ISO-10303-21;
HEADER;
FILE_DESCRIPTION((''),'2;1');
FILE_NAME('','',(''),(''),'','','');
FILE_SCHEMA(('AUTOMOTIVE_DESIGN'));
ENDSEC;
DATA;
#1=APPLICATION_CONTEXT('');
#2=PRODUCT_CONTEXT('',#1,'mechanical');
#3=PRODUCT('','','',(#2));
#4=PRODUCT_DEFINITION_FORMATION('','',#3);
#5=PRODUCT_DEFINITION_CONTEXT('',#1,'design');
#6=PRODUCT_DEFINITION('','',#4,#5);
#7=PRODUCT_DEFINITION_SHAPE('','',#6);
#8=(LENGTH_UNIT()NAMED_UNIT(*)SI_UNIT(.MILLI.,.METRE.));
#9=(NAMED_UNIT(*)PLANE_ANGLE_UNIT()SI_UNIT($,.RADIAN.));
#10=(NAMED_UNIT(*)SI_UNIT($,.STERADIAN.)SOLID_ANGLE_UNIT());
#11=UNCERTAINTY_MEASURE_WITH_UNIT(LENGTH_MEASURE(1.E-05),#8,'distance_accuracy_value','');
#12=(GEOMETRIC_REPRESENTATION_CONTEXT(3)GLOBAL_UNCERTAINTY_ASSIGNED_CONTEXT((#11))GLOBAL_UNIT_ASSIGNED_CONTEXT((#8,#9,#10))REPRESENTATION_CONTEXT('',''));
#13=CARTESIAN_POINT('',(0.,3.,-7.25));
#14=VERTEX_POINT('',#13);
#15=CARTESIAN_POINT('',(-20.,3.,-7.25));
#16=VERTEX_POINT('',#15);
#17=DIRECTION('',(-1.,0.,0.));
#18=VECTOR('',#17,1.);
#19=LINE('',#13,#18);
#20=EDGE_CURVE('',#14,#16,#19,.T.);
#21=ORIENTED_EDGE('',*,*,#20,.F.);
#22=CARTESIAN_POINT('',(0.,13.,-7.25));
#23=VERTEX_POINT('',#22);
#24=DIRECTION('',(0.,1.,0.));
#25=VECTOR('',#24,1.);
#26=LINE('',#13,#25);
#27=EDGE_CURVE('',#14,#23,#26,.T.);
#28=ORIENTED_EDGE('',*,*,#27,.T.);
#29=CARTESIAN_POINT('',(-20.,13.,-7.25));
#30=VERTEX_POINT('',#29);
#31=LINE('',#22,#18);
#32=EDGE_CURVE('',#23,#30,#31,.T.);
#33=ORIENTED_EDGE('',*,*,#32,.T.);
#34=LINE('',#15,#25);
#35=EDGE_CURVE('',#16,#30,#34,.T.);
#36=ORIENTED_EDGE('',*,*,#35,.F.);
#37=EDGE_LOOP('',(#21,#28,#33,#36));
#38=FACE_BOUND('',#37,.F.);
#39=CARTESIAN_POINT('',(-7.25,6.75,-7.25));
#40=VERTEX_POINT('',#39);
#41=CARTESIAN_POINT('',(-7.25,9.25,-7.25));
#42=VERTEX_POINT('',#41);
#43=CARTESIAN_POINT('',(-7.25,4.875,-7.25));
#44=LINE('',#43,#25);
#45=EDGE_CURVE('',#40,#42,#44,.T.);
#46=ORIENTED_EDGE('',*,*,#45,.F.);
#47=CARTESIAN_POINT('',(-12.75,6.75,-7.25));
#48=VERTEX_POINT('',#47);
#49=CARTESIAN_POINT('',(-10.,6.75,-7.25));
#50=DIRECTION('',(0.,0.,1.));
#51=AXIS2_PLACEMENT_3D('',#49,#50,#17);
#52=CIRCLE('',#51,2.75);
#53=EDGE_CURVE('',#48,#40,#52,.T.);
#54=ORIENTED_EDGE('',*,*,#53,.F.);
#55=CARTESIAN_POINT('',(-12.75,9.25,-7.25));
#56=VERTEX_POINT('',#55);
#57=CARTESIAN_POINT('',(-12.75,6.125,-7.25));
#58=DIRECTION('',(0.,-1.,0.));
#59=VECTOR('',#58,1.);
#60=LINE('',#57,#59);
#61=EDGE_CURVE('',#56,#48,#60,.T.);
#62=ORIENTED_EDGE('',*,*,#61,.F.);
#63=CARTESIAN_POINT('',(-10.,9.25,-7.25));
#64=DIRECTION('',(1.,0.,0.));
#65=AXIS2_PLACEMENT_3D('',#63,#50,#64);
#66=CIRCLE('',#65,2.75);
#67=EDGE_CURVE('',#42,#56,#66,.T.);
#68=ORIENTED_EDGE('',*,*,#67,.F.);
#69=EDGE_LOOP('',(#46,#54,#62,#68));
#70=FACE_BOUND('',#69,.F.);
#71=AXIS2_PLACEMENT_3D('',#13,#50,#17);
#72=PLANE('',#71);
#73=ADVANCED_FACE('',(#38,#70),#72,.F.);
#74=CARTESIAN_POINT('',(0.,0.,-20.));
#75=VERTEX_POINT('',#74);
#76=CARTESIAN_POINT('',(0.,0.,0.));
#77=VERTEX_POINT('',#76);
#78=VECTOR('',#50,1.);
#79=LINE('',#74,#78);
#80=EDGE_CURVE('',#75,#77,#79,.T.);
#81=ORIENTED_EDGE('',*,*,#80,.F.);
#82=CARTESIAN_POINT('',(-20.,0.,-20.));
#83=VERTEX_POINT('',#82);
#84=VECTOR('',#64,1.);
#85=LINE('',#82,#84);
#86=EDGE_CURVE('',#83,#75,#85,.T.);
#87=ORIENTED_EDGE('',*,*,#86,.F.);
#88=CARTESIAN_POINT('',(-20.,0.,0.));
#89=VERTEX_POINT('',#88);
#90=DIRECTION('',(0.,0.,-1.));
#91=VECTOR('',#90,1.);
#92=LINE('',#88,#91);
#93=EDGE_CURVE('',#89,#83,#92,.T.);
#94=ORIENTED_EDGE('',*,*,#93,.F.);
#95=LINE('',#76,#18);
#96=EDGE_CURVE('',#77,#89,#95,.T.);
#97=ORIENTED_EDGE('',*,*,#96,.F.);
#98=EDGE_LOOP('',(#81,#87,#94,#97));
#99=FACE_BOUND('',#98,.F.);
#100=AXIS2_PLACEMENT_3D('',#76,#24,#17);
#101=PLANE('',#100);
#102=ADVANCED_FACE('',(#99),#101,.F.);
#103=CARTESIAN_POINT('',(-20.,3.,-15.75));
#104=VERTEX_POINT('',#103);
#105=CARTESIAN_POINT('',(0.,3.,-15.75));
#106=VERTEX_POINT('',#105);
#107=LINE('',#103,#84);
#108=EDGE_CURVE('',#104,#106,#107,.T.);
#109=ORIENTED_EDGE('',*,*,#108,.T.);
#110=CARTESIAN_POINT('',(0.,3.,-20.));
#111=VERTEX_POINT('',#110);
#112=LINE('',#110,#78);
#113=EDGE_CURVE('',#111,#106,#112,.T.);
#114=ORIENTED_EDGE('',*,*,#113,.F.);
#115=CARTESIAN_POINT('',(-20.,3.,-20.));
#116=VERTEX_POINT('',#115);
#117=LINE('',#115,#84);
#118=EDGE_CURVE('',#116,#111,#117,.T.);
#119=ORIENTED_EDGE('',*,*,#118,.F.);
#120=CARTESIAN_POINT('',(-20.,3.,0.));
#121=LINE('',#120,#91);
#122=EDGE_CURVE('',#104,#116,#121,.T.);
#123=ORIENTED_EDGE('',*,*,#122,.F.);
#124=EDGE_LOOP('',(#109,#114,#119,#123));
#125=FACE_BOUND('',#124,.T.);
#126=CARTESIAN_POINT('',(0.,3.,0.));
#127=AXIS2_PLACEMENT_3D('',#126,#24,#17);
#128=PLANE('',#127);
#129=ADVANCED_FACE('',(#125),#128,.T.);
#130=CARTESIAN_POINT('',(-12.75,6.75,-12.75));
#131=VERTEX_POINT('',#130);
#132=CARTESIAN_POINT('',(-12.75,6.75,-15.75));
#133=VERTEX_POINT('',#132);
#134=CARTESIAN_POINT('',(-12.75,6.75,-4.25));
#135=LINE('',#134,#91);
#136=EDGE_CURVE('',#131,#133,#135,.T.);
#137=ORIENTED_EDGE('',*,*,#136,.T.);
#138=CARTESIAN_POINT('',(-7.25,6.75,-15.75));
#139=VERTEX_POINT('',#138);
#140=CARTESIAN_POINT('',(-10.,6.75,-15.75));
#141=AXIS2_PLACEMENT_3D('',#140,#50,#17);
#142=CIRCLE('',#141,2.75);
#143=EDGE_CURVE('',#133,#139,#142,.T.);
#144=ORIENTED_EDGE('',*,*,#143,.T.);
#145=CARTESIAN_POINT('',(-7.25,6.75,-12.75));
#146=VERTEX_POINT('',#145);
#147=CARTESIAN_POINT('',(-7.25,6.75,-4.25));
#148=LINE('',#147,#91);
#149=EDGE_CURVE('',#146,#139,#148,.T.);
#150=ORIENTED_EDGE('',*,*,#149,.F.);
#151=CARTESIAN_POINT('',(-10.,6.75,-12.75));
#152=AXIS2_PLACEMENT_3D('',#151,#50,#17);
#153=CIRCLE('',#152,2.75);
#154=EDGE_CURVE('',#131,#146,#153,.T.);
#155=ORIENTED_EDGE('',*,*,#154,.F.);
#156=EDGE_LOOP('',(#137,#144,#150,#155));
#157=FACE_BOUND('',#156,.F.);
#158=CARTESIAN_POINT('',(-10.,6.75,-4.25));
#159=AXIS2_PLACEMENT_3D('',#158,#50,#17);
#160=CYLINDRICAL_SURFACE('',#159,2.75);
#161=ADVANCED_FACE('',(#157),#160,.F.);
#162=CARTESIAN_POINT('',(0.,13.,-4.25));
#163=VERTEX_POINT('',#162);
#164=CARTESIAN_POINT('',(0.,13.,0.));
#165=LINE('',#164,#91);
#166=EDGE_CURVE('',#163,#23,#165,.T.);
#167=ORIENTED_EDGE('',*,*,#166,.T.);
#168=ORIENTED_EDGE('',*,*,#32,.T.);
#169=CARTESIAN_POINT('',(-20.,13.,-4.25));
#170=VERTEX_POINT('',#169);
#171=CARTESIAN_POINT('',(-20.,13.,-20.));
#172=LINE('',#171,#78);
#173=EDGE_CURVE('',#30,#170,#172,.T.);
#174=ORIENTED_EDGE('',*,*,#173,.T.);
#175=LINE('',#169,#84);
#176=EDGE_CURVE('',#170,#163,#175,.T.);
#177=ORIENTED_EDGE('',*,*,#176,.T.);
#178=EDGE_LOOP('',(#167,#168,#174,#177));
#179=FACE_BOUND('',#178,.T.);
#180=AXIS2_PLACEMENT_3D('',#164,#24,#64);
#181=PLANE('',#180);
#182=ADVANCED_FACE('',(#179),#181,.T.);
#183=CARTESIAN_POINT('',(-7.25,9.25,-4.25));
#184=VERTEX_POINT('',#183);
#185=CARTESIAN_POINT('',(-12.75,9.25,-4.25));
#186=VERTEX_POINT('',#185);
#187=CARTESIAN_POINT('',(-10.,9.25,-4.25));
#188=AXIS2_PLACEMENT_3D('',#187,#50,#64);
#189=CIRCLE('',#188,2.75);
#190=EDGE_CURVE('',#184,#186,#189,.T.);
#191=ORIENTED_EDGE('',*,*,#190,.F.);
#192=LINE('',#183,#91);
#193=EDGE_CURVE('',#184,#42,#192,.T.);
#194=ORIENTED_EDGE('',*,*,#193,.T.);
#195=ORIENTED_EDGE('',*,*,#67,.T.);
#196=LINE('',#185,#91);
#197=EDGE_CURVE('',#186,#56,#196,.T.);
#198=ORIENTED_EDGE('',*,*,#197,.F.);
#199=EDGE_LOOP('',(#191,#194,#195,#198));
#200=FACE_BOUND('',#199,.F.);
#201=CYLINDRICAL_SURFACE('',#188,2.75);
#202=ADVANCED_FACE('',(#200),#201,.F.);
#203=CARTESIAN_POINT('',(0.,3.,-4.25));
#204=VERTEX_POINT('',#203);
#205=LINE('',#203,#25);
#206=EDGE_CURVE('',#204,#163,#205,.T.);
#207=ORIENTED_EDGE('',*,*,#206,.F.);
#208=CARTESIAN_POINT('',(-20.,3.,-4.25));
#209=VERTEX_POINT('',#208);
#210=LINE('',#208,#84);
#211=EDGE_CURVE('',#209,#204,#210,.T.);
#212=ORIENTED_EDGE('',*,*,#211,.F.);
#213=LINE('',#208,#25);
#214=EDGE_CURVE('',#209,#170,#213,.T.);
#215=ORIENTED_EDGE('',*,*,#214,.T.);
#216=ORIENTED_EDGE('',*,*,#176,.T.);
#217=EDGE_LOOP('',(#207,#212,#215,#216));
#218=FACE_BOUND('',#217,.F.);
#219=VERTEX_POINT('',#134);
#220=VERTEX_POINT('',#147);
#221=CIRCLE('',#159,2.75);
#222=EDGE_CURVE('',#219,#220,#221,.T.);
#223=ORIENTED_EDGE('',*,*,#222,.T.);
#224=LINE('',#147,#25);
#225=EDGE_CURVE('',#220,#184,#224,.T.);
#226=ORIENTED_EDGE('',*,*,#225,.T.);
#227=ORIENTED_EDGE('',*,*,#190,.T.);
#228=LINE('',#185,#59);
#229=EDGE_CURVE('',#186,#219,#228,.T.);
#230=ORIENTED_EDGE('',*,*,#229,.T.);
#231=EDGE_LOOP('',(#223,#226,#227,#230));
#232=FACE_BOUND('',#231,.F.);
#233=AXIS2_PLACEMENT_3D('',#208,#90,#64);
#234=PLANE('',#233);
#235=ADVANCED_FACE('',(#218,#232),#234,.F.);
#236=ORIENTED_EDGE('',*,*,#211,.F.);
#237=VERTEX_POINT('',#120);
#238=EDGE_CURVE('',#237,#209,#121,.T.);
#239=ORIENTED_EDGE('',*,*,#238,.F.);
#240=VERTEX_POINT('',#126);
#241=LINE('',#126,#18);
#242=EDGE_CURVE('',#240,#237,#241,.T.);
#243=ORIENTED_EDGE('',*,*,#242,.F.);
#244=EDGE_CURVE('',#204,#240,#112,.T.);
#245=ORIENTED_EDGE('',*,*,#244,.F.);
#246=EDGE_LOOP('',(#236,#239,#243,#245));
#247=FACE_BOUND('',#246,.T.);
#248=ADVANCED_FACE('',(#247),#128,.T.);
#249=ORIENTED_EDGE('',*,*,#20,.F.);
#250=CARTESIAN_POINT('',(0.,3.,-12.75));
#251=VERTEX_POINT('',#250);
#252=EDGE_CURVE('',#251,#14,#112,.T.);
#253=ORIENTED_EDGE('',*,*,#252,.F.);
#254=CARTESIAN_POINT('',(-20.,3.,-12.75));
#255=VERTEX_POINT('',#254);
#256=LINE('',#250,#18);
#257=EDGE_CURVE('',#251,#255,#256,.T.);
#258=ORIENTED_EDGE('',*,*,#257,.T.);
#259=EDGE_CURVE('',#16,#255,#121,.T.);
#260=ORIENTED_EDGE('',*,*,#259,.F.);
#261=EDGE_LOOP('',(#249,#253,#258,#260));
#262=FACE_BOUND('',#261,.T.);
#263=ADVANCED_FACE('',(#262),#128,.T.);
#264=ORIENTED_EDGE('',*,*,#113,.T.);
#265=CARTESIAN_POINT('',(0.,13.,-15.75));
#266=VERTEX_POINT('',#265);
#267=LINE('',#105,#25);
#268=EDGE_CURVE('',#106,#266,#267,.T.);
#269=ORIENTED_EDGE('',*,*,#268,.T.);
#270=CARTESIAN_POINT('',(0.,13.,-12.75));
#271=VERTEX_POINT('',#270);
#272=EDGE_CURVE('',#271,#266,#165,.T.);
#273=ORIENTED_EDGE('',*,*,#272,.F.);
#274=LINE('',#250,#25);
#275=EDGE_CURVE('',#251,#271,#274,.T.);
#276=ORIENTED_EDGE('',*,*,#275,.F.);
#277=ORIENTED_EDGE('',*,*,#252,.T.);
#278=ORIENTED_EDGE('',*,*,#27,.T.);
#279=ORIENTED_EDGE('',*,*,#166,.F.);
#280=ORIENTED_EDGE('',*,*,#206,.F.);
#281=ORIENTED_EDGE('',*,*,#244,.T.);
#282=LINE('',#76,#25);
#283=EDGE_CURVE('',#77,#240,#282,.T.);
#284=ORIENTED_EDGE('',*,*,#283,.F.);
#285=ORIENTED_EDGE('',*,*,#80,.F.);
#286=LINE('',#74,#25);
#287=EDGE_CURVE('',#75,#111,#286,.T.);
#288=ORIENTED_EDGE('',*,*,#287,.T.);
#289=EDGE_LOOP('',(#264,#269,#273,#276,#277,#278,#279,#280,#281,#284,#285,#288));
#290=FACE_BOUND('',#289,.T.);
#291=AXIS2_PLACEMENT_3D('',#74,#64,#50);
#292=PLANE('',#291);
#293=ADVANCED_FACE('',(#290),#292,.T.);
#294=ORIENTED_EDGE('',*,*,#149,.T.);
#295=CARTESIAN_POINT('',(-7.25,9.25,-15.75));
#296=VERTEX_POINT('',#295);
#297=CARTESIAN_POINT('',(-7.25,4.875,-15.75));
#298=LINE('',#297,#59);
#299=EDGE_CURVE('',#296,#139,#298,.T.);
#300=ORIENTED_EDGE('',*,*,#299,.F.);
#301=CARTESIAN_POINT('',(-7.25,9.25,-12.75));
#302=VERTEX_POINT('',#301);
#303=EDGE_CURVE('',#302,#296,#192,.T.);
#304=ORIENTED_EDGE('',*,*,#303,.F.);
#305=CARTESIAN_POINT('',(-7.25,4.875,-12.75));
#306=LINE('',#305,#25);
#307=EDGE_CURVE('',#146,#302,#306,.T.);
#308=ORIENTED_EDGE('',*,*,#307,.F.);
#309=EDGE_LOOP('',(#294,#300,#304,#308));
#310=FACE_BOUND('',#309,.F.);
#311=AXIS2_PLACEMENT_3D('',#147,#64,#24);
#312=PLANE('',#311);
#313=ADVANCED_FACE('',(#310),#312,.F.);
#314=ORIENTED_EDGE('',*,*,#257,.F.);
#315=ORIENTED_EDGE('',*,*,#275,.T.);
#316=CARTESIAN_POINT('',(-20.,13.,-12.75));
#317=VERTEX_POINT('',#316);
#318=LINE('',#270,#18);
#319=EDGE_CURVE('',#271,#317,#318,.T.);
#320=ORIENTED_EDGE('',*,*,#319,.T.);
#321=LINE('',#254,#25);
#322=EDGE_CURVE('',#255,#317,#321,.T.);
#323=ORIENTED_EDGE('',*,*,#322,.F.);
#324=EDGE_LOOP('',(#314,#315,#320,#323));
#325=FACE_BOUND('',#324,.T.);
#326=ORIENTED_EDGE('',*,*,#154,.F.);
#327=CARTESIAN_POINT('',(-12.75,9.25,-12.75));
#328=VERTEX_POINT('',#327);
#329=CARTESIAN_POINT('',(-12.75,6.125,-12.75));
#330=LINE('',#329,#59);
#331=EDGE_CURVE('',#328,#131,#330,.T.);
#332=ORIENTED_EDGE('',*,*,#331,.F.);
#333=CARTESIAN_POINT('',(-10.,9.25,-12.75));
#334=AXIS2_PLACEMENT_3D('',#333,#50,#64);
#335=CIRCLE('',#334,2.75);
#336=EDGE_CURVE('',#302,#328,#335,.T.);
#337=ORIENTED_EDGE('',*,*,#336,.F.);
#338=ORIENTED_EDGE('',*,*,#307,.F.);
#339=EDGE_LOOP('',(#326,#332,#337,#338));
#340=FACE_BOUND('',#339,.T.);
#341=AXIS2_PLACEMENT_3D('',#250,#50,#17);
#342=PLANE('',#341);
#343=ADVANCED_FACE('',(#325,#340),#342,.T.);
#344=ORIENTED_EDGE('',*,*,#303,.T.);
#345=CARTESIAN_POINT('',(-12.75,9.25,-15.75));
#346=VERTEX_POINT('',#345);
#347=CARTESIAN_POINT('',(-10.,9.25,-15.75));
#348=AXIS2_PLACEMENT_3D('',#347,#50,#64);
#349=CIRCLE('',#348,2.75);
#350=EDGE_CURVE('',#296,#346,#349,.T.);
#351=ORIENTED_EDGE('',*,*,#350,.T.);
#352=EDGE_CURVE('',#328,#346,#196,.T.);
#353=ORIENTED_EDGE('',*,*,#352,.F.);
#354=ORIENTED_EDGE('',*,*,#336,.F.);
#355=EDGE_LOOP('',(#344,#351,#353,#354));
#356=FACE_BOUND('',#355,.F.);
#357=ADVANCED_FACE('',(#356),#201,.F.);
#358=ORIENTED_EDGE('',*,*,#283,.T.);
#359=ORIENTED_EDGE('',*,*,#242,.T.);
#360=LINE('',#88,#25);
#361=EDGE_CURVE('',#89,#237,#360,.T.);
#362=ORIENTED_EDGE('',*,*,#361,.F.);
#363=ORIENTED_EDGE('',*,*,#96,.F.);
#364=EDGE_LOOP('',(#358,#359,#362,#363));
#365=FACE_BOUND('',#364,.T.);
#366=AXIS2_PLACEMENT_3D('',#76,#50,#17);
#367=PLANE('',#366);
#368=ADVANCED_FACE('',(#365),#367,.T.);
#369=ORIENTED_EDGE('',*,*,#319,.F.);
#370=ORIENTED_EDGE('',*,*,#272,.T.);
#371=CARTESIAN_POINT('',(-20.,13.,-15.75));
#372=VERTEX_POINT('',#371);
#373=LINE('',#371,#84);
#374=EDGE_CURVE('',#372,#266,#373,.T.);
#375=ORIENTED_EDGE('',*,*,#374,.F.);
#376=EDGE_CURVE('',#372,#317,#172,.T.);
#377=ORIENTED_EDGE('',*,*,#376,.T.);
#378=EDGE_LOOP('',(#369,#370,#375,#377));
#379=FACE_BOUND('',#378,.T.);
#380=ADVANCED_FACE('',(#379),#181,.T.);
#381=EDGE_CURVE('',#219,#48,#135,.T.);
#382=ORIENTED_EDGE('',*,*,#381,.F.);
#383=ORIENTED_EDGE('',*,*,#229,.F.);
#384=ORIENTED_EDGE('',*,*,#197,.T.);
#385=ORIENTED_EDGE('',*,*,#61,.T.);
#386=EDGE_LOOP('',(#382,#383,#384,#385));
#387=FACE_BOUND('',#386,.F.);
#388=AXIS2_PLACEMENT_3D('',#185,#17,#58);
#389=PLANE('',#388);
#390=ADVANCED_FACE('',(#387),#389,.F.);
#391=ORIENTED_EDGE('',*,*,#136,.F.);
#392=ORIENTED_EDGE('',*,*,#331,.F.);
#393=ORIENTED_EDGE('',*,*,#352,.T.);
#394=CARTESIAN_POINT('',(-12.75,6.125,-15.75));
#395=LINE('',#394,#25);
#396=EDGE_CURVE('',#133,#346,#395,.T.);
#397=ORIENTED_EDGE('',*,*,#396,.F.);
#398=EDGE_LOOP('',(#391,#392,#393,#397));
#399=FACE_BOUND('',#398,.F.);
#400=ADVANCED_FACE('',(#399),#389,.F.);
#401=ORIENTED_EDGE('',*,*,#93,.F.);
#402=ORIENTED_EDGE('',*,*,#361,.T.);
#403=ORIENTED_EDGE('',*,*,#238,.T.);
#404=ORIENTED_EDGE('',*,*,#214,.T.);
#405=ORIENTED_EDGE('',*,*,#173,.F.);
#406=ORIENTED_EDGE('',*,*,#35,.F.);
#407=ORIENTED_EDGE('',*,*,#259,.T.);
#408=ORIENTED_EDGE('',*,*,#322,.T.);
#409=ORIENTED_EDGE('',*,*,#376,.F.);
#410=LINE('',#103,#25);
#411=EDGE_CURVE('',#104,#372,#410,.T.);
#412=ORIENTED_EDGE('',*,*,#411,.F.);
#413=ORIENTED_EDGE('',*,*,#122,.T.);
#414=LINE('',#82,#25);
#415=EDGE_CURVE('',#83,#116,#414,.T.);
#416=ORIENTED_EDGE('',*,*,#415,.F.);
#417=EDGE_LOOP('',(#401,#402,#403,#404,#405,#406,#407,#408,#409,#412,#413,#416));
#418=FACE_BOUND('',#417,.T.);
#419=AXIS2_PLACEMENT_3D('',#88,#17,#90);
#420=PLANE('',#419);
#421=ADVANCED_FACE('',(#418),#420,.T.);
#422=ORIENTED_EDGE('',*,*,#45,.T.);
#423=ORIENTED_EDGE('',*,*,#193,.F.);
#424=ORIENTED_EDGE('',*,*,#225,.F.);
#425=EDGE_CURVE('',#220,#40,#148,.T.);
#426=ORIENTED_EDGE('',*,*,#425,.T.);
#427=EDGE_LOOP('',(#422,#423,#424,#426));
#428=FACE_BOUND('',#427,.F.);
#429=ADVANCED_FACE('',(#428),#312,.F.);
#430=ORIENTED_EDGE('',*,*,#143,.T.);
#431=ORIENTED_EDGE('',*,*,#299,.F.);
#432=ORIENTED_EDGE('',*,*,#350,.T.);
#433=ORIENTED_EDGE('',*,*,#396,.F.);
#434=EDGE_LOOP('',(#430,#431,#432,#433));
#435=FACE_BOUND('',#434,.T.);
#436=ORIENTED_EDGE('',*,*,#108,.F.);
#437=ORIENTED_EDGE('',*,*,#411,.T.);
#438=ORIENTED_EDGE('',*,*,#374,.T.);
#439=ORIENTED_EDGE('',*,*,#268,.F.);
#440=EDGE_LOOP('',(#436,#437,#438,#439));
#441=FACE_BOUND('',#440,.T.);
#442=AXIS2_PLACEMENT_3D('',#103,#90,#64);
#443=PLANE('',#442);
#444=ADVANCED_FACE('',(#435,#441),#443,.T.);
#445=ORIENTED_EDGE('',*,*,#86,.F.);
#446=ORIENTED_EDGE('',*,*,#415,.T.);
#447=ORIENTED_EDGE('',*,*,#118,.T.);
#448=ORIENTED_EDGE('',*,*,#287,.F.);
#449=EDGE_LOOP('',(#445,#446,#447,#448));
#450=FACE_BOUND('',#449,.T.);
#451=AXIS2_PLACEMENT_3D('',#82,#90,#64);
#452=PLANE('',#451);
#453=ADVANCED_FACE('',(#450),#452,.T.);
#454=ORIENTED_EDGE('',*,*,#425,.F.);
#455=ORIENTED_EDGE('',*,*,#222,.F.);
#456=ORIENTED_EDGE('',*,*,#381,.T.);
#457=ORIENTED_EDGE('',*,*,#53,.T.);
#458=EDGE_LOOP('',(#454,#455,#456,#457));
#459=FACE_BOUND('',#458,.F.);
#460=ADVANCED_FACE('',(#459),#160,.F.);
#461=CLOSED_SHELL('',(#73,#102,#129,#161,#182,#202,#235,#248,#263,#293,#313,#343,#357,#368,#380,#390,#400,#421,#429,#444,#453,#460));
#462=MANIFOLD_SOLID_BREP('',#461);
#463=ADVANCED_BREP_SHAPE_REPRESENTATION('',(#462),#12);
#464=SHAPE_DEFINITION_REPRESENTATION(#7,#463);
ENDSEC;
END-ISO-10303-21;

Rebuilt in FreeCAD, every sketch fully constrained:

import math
import FreeCAD as App
import Part
import Sketcher
from FreeCAD import Vector


def add_polygon(sketch, points):
    """Adds a closed chain of lines whose ends are joined by coincident constraints."""
    first, n = sketch.GeometryCount, len(points)
    for a, b in zip(points, points[1:] + points[:1]):
        sketch.addGeometry(Part.LineSegment(App.Vector(*a, 0), App.Vector(*b, 0)), False)
    for i in range(n):
        sketch.addConstraint(Sketcher.Constraint("Coincident", first + i, 2, first + (i + 1) % n, 1))

doc = App.newDocument("Part")
body = doc.addObject("PartDesign::Body", "Body")

# Sketch on XZ plane
sketch1 = doc.addObject("Sketcher::SketchObject", "Sketch")
body.addObject(sketch1)
sketch1.AttachmentSupport = (doc.XZ_Plane, [""])
sketch1.MapMode = "FlatFace"
add_polygon(sketch1, [(-20, 0), (0, 0), (0, -20), (-20, -20)])  # lines 0-3
sketch1.addConstraint([
    Sketcher.Constraint("Horizontal", 0),
    Sketcher.Constraint("Vertical", 1),
    Sketcher.Constraint("Horizontal", 2),
    Sketcher.Constraint("Vertical", 3),
    Sketcher.Constraint("Coincident", 0, 2, -1, 1),
    Sketcher.Constraint("Equal", 2, 1),
    Sketcher.Constraint("DistanceX", 0, 1, 0, 2, 20.0),
])
pad1 = doc.addObject("PartDesign::Pad", "Pad")
body.addObject(pad1)
pad1.Profile = sketch1
pad1.Length = 3
pad1.Reversed = True

# Sketch on XZ plane
sketch2 = doc.addObject("Sketcher::SketchObject", "Sketch001")
body.addObject(sketch2)
sketch2.AttachmentSupport = (doc.XZ_Plane, [""])
sketch2.MapMode = "FlatFace"
sketch2.AttachmentOffset = App.Placement(Vector(0, 0, -3), App.Rotation())
add_polygon(sketch2, [(0, -15.8), (-20, -15.8), (-20, -12.8), (0, -12.8)])  # lines 0-3
add_polygon(sketch2, [(0, -7.2), (-20, -7.2), (-20, -4.2), (0, -4.2)])  # lines 4-7
sketch2.addConstraint([
    Sketcher.Constraint("Horizontal", 0),
    Sketcher.Constraint("Vertical", 1),
    Sketcher.Constraint("Horizontal", 2),
    Sketcher.Constraint("Vertical", 3),
    Sketcher.Constraint("Horizontal", 4),
    Sketcher.Constraint("Vertical", 5),
    Sketcher.Constraint("Horizontal", 6),
    Sketcher.Constraint("Vertical", 7),
    Sketcher.Constraint("PointOnObject", 2, 2, -2),
    Sketcher.Constraint("PointOnObject", 6, 2, -2),
    Sketcher.Constraint("Vertical", 1, 2, 4, 2),
    Sketcher.Constraint("Equal", 3, 5),
    Sketcher.Constraint("DistanceY", 1, 1, 1, 2, 3.0),
    Sketcher.Constraint("DistanceY", 1, 2, 4, 2, 5.5),
    Sketcher.Constraint("DistanceX", 0, 2, 0, 1, 20.0),
    Sketcher.Constraint("DistanceY", 5, 2, -1, 1, 4.25),
])
pad2 = doc.addObject("PartDesign::Pad", "Pad001")
body.addObject(pad2)
pad2.Profile = sketch2
pad2.Length = 10
pad2.Reversed = True

# Sketch on XY plane
sketch3 = doc.addObject("Sketcher::SketchObject", "Sketch002")
body.addObject(sketch3)
sketch3.AttachmentSupport = (doc.XY_Plane, [""])
sketch3.MapMode = "FlatFace"
sketch3.AttachmentOffset = App.Placement(Vector(0, 0, -4.25), App.Rotation())
sketch3.addGeometry([
    Part.ArcOfCircle(Part.Circle(Vector(-10, 9.2, 0), Vector(0, 0, 1), 2.8), math.radians(0), math.radians(180)),
    Part.LineSegment(Vector(-12.8, 9.2, 0), Vector(-12.8, 6.8, 0)),
    Part.ArcOfCircle(Part.Circle(Vector(-10, 6.8, 0), Vector(0, 0, 1), 2.8), math.radians(180), math.radians(360)),
    Part.LineSegment(Vector(-7.2, 6.8, 0), Vector(-7.2, 9.2, 0)),
], False)
sketch3.addConstraint([
    Sketcher.Constraint("Tangent", 0, 2, 1, 1),
    Sketcher.Constraint("Tangent", 1, 2, 2, 1),
    Sketcher.Constraint("Tangent", 2, 2, 3, 1),
    Sketcher.Constraint("Tangent", 3, 2, 0, 1),
    Sketcher.Constraint("Vertical", 1),
    Sketcher.Constraint("Vertical", 3),
    Sketcher.Constraint("Radius", 0, 2.75),
    Sketcher.Constraint("DistanceX", 0, 3, -1, 1, 10.0),
    Sketcher.Constraint("DistanceY", 1, 2, 1, 1, 2.5),
    Sketcher.Constraint("DistanceY", -1, 1, 0, 3, 9.25),
])
pocket1 = doc.addObject("PartDesign::Pocket", "Pocket")
body.addObject(pocket1)
pocket1.Profile = sketch3
pocket1.Length = 16.75

doc.recompute()
